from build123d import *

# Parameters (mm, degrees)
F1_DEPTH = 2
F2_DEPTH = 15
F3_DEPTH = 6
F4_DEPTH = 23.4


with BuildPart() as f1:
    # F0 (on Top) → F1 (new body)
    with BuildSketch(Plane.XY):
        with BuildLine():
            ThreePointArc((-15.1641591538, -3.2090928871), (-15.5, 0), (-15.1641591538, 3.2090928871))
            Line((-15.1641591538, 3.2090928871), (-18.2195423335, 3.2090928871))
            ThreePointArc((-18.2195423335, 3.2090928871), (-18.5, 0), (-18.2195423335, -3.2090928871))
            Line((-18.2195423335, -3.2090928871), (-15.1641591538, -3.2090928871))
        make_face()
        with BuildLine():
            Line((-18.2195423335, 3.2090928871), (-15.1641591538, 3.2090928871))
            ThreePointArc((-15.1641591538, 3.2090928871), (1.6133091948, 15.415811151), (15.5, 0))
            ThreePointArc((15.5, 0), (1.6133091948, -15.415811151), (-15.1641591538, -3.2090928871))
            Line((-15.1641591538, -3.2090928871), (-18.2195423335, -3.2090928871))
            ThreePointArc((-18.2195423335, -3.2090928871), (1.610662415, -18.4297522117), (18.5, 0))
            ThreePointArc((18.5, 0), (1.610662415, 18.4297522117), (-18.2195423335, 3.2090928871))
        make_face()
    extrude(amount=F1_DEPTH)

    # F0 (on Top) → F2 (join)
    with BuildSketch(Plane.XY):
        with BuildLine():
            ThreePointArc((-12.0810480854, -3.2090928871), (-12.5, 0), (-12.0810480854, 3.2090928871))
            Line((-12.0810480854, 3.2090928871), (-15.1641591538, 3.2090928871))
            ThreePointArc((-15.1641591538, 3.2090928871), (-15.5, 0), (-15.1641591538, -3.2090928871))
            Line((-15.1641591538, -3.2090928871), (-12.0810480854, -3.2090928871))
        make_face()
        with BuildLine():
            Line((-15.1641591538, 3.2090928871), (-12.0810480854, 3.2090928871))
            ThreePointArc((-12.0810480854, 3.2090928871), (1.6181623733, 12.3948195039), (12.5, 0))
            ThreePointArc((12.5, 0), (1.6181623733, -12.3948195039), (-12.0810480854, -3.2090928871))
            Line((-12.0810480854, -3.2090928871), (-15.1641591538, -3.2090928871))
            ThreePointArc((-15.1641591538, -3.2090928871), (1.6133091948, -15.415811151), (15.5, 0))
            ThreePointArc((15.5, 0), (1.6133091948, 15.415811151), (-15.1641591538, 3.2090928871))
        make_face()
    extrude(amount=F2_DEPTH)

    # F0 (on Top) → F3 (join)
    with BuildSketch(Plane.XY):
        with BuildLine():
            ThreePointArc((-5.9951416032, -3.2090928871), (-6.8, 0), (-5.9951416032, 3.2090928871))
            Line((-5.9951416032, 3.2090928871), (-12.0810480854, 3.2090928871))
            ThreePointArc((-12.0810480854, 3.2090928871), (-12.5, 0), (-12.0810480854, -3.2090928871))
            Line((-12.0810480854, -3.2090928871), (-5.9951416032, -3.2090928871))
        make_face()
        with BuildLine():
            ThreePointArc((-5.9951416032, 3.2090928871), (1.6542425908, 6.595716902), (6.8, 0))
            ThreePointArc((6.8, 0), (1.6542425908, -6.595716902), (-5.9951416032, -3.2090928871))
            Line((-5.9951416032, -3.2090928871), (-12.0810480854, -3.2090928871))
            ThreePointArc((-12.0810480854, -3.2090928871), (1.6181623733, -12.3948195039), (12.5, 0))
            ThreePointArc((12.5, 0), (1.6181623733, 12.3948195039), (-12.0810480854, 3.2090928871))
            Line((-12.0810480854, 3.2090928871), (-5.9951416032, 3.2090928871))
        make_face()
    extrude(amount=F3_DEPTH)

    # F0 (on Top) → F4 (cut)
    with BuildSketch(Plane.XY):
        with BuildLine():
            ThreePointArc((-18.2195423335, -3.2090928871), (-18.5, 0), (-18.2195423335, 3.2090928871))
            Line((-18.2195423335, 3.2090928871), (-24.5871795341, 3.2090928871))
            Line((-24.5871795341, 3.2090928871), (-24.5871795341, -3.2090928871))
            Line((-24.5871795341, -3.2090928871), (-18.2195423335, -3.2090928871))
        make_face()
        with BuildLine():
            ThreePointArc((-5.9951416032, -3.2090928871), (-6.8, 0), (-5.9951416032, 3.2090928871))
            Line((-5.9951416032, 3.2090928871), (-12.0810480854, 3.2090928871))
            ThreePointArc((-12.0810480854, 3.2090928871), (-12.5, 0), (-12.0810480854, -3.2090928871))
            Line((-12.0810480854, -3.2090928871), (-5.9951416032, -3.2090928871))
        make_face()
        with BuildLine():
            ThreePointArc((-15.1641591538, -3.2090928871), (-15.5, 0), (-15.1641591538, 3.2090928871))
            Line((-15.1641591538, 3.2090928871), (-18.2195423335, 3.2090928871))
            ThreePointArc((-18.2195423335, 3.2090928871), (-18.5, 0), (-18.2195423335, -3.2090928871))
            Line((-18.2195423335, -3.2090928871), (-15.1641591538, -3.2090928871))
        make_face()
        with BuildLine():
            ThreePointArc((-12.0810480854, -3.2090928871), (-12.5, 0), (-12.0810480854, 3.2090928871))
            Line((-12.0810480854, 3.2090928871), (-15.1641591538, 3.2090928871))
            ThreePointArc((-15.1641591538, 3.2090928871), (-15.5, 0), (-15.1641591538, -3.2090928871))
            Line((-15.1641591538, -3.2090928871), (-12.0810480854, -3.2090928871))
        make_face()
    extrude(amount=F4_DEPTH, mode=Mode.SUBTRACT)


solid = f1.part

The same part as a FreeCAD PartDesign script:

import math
import FreeCAD as App
import Part
import Sketcher

V = App.Vector
Q = App.Units.Quantity

doc = App.newDocument("Part")
params = doc.addObject("Spreadsheet::Sheet", "Params")
for row, (alias, value) in enumerate([
    ("sketch1_radius", "18.5 mm"),
    ("sketch1_radius2", "15.5 mm"),
    ("pad1_length", "2 mm"),
    ("sketch2_radius", "15.5 mm"),
    ("sketch2_radius2", "12.5 mm"),
    ("pad2_length", "15 mm"),
    ("sketch3_radius", "12.5 mm"),
    ("sketch3_radius2", "6.8 mm"),
    ("pad3_length", "6 mm"),
    ("sketch4_radius", "6.8 mm"),
    ("pocket1_length", "23.4 mm"),
], start=1):
    params.set(f"A{row}", alias)
    params.set(f"B{row}", "=" + value)
    params.setAlias(f"B{row}", alias)

body = doc.addObject("PartDesign::Body", "Body")

# Sketch on XY plane
sketch1 = body.newObject("Sketcher::SketchObject", "Sketch")
sketch1.AttachmentSupport = (doc.getObject("XY_Plane"), [""])
sketch1.MapMode = "FlatFace"
sketch1.addGeometry(Part.ArcOfCircle(Part.Circle(V(0, 0, 0), V(0, 0, 1), 18.5), math.radians(170.010687), math.radians(189.989313)), False)
sketch1.addGeometry(Part.ArcOfCircle(Part.Circle(V(0, 0, 0), V(0, 0, 1), 18.5), math.radians(-170.010687), math.radians(0)), False)
sketch1.addGeometry(Part.ArcOfCircle(Part.Circle(V(0, 0, 0), V(0, 0, 1), 18.5), math.radians(0), math.radians(170.010687)), False)
sketch1.addGeometry(Part.ArcOfCircle(Part.Circle(V(0, 0, 0), V(0, 0, 1), 15.5), math.radians(168.051158), math.radians(191.948842)), False)
sketch1.addGeometry(Part.ArcOfCircle(Part.Circle(V(0, 0, 0), V(0, 0, 1), 15.5), math.radians(0), math.radians(168.051158)), False)
sketch1.addGeometry(Part.ArcOfCircle(Part.Circle(V(0, 0, 0), V(0, 0, 1), 15.5), math.radians(-168.051158), math.radians(0)), False)
sketch1.addConstraint(Sketcher.Constraint("Tangent", 0, 2, 1, 1))
sketch1.addConstraint(Sketcher.Constraint("Tangent", 1, 2, 2, 1))
sketch1.addConstraint(Sketcher.Constraint("Tangent", 2, 2, 0, 1))
sketch1.addConstraint(Sketcher.Constraint("Tangent", 3, 1, 4, 2))
sketch1.addConstraint(Sketcher.Constraint("Tangent", 4, 1, 5, 2))
sketch1.addConstraint(Sketcher.Constraint("Tangent", 5, 1, 3, 2))
sketch1.addConstraint(Sketcher.Constraint("Coincident", 0, 3, -1, 1))
sketch1.addConstraint(Sketcher.Constraint("Coincident", 3, 3, -1, 1))
sketch1.addConstraint(Sketcher.Constraint("PointOnObject", 1, 2, -1))
sketch1.addConstraint(Sketcher.Constraint("PointOnObject", 4, 1, -1))
sketch1.addConstraint(Sketcher.Constraint("Horizontal", 2, 2, 3, 1))
sketch1.addConstraint(Sketcher.Constraint("Horizontal", 0, 2, 5, 1))
sketch1.addConstraint(Sketcher.Constraint("Vertical", 0, 2, 2, 2))
sketch1.addConstraint(Sketcher.Constraint("Radius", 0, Q("18.5 mm")))
sketch1.addConstraint(Sketcher.Constraint("Radius", 3, Q("15.5 mm")))
sketch1.addConstraint(Sketcher.Constraint("DistanceX", 3, 1, -1, 1, Q("15.164159 mm")))
sketch1.setExpression("Constraints[13]", "Params.sketch1_radius")
sketch1.setExpression("Constraints[14]", "Params.sketch1_radius2")
pad1 = body.newObject("PartDesign::Pad", "Pad")
pad1.Profile = sketch1
pad1.setExpression("Length", "Params.pad1_length")

# Sketch on XY plane
sketch2 = body.newObject("Sketcher::SketchObject", "Sketch001")
sketch2.AttachmentSupport = (doc.getObject("XY_Plane"), [""])
sketch2.MapMode = "FlatFace"
sketch2.addGeometry(Part.ArcOfCircle(Part.Circle(V(0, 0, 0), V(0, 0, 1), 15.5), math.radians(168.051158), math.radians(191.948842)), False)
sketch2.addGeometry(Part.ArcOfCircle(Part.Circle(V(0, 0, 0), V(0, 0, 1), 15.5), math.radians(-168.051158), math.radians(0)), False)
sketch2.addGeometry(Part.ArcOfCircle(Part.Circle(V(0, 0, 0), V(0, 0, 1), 15.5), math.radians(0), math.radians(168.051158)), False)
sketch2.addGeometry(Part.ArcOfCircle(Part.Circle(V(0, 0, 0), V(0, 0, 1), 12.5), math.radians(165.124032), math.radians(194.875968)), False)
sketch2.addGeometry(Part.ArcOfCircle(Part.Circle(V(0, 0, 0), V(0, 0, 1), 12.5), math.radians(0), math.radians(165.124032)), False)
sketch2.addGeometry(Part.ArcOfCircle(Part.Circle(V(0, 0, 0), V(0, 0, 1), 12.5), math.radians(-165.124032), math.radians(0)), False)
sketch2.addConstraint(Sketcher.Constraint("Tangent", 0, 2, 1, 1))
sketch2.addConstraint(Sketcher.Constraint("Tangent", 1, 2, 2, 1))
sketch2.addConstraint(Sketcher.Constraint("Tangent", 2, 2, 0, 1))
sketch2.addConstraint(Sketcher.Constraint("Tangent", 3, 1, 4, 2))
sketch2.addConstraint(Sketcher.Constraint("Tangent", 4, 1, 5, 2))
sketch2.addConstraint(Sketcher.Constraint("Tangent", 5, 1, 3, 2))
sketch2.addConstraint(Sketcher.Constraint("Coincident", 0, 3, -1, 1))
sketch2.addConstraint(Sketcher.Constraint("Coincident", 3, 3, -1, 1))
sketch2.addConstraint(Sketcher.Constraint("PointOnObject", 1, 2, -1))
sketch2.addConstraint(Sketcher.Constraint("PointOnObject", 4, 1, -1))
sketch2.addConstraint(Sketcher.Constraint("Horizontal", 2, 2, 3, 1))
sketch2.addConstraint(Sketcher.Constraint("Horizontal", 0, 2, 5, 1))
sketch2.addConstraint(Sketcher.Constraint("Vertical", 0, 2, 2, 2))
sketch2.addConstraint(Sketcher.Constraint("Radius", 0, Q("15.5 mm")))
sketch2.addConstraint(Sketcher.Constraint("Radius", 3, Q("12.5 mm")))
sketch2.addConstraint(Sketcher.Constraint("DistanceX", 0, 2, -1, 1, Q("15.164159 mm")))
sketch2.setExpression("Constraints[13]", "Params.sketch2_radius")
sketch2.setExpression("Constraints[14]", "Params.sketch2_radius2")
pad2 = body.newObject("PartDesign::Pad", "Pad001")
pad2.Profile = sketch2
pad2.setExpression("Length", "Params.pad2_length")

# Sketch on XY plane
sketch3 = body.newObject("Sketcher::SketchObject", "Sketch002")
sketch3.AttachmentSupport = (doc.getObject("XY_Plane"), [""])
sketch3.MapMode = "FlatFace"
sketch3.addGeometry(Part.ArcOfCircle(Part.Circle(V(0, 0, 0), V(0, 0, 1), 12.5), math.radians(165.124032), math.radians(194.875968)), False)
sketch3.addGeometry(Part.ArcOfCircle(Part.Circle(V(0, 0, 0), V(0, 0, 1), 12.5), math.radians(-165.124032), math.radians(0)), False)
sketch3.addGeometry(Part.ArcOfCircle(Part.Circle(V(0, 0, 0), V(0, 0, 1), 12.5), math.radians(0), math.radians(165.124032)), False)
sketch3.addGeometry(Part.ArcOfCircle(Part.Circle(V(0, 0, 0), V(0, 0, 1), 6.8), math.radians(151.840647), math.radians(208.159353)), False)
sketch3.addGeometry(Part.ArcOfCircle(Part.Circle(V(0, 0, 0), V(0, 0, 1), 6.8), math.radians(0), math.radians(151.840647)), False)
sketch3.addGeometry(Part.ArcOfCircle(Part.Circle(V(0, 0, 0), V(0, 0, 1), 6.8), math.radians(-151.840647), math.radians(0)), False)
sketch3.addConstraint(Sketcher.Constraint("Tangent", 0, 2, 1, 1))
sketch3.addConstraint(Sketcher.Constraint("Tangent", 1, 2, 2, 1))
sketch3.addConstraint(Sketcher.Constraint("Tangent", 2, 2, 0, 1))
sketch3.addConstraint(Sketcher.Constraint("Tangent", 3, 1, 4, 2))
sketch3.addConstraint(Sketcher.Constraint("Tangent", 4, 1, 5, 2))
sketch3.addConstraint(Sketcher.Constraint("Tangent", 5, 1, 3, 2))
sketch3.addConstraint(Sketcher.Constraint("Coincident", 0, 3, -1, 1))
sketch3.addConstraint(Sketcher.Constraint("Coincident", 3, 3, -1, 1))
sketch3.addConstraint(Sketcher.Constraint("PointOnObject", 1, 2, -1))
sketch3.addConstraint(Sketcher.Constraint("PointOnObject", 4, 1, -1))
sketch3.addConstraint(Sketcher.Constraint("Horizontal", 2, 2, 3, 1))
sketch3.addConstraint(Sketcher.Constraint("Horizontal", 0, 2, 5, 1))
sketch3.addConstraint(Sketcher.Constraint("Vertical", 0, 2, 2, 2))
sketch3.addConstraint(Sketcher.Constraint("Radius", 0, Q("12.5 mm")))
sketch3.addConstraint(Sketcher.Constraint("Radius", 3, Q("6.8 mm")))
sketch3.addConstraint(Sketcher.Constraint("DistanceX", 0, 2, -1, 1, Q("12.081048 mm")))
sketch3.setExpression("Constraints[13]", "Params.sketch3_radius")
sketch3.setExpression("Constraints[14]", "Params.sketch3_radius2")
pad3 = body.newObject("PartDesign::Pad", "Pad002")
pad3.Profile = sketch3
pad3.setExpression("Length", "Params.pad3_length")

# Sketch on XY plane
sketch4 = body.newObject("Sketcher::SketchObject", "Sketch003")
sketch4.AttachmentSupport = (doc.getObject("XY_Plane"), [""])
sketch4.MapMode = "FlatFace"
sketch4.addGeometry(Part.LineSegment(V(-24.58718, 3.209093, 0), V(-24.58718, -3.209093, 0)), False)
sketch4.addGeometry(Part.LineSegment(V(-24.58718, -3.209093, 0), V(-5.995142, -3.209093, 0)), False)
sketch4.addGeometry(Part.ArcOfCircle(Part.Circle(V(0, 0, 0), V(0, 0, 1), 6.8), math.radians(151.840647), math.radians(208.159353)), False)
sketch4.addGeometry(Part.LineSegment(V(-5.995142, 3.209093, 0), V(-24.58718, 3.209093, 0)), False)
sketch4.addConstraint(Sketcher.Constraint("Coincident", 0, 2, 1, 1))
sketch4.addConstraint(Sketcher.Constraint("Coincident", 1, 2, 2, 2))
sketch4.addConstraint(Sketcher.Constraint("Coincident", 2, 1, 3, 1))
sketch4.addConstraint(Sketcher.Constraint("Coincident", 3, 2, 0, 1))
sketch4.addConstraint(Sketcher.Constraint("Vertical", 0))
sketch4.addConstraint(Sketcher.Constraint("Horizontal", 1))
sketch4.addConstraint(Sketcher.Constraint("Horizontal", 3))
sketch4.addConstraint(Sketcher.Constraint("Coincident", 2, 3, -1, 1))
sketch4.addConstraint(Sketcher.Constraint("Vertical", 1, 2, 2, 1))
sketch4.addConstraint(Sketcher.Constraint("Radius", 2, Q("6.8 mm")))
sketch4.addConstraint(Sketcher.Constraint("DistanceX", 1, 1, 1, 2, Q("18.592038 mm")))
sketch4.addConstraint(Sketcher.Constraint("DistanceY", 0, 2, 0, 1, Q("6.418186 mm")))
sketch4.setExpression("Constraints[9]", "Params.sketch4_radius")
pocket1 = body.newObject("PartDesign::Pocket", "Pocket")
pocket1.Profile = sketch4
pocket1.setExpression("Length", "Params.pocket1_length")
pocket1.Reversed = True

doc.recompute()
